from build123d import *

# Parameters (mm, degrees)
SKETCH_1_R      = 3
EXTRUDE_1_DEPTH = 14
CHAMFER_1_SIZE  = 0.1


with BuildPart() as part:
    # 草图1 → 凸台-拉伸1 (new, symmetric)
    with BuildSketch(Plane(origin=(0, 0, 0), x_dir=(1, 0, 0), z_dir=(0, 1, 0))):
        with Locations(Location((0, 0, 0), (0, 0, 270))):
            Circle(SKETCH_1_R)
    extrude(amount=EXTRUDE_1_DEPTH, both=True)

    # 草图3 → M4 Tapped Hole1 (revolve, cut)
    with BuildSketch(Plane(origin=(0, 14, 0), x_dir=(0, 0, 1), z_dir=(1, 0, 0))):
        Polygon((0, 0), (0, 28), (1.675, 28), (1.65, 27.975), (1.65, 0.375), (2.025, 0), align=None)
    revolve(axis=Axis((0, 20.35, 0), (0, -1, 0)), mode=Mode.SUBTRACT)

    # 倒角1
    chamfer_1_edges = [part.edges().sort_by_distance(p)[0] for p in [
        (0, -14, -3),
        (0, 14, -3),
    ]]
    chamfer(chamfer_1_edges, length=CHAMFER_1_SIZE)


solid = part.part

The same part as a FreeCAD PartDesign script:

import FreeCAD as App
import Part
import Sketcher
Q = App.Units.Quantity


def edges_at(feature, points):
    """Names of the edges that pass closest to the given points."""
    edges = feature.Shape.Edges
    near = lambda p: min(range(len(edges)), key=lambda i: edges[i].distToShape(Part.Vertex(*p))[0])
    return sorted({f"Edge{near(p) + 1}" for p in points})

doc = App.newDocument("Part")
body = doc.addObject("PartDesign::Body", "Body")

# Sketch on XZ plane
sketch1 = doc.addObject("Sketcher::SketchObject", "Sketch")
body.addObject(sketch1)
sketch1.AttachmentSupport = (doc.XZ_Plane, [""])
sketch1.MapMode = "FlatFace"
sketch1.addGeometry(Part.Circle(App.Vector(0, 0, 0), App.Vector(0, 0, 1), 3), False)
sketch1.addConstraint([
    Sketcher.Constraint("Coincident", 0, 3, -1, 1),
    Sketcher.Constraint("Diameter", 0, 6.0),
])
pad1 = doc.addObject("PartDesign::Pad", "Pad")
body.addObject(pad1)
pad1.Profile = sketch1
pad1.Length = 28
pad1.Midplane = True

# Sketch on YZ plane
sketch2 = doc.addObject("Sketcher::SketchObject", "Sketch001")
body.addObject(sketch2)
sketch2.AttachmentSupport = (doc.YZ_Plane, [""])
sketch2.MapMode = "FlatFace"
sketch2.addGeometry([
    Part.LineSegment(App.Vector(-14, 0, 0), App.Vector(14, 0, 0)),  # 0
    Part.LineSegment(App.Vector(14, 0, 0), App.Vector(14, 2.025, 0)),  # 1
    Part.LineSegment(App.Vector(14, 2.025, 0), App.Vector(13.625, 1.65, 0)),  # 2
    Part.LineSegment(App.Vector(13.625, 1.65, 0), App.Vector(-13.975, 1.65, 0)),  # 3
    Part.LineSegment(App.Vector(-13.975, 1.65, 0), App.Vector(-14, 1.675, 0)),  # 4
    Part.LineSegment(App.Vector(-14, 1.675, 0), App.Vector(-14, 0, 0)),  # 5
], False)
sketch2.addConstraint([
    Sketcher.Constraint("Coincident", 0, 2, 1, 1),
    Sketcher.Constraint("Coincident", 1, 2, 2, 1),
    Sketcher.Constraint("Coincident", 2, 2, 3, 1),
    Sketcher.Constraint("Coincident", 3, 2, 4, 1),
    Sketcher.Constraint("Coincident", 4, 2, 5, 1),
    Sketcher.Constraint("Coincident", 5, 2, 0, 1),
    Sketcher.Constraint("Horizontal", 0),
    Sketcher.Constraint("Vertical", 1),
    Sketcher.Constraint("Horizontal", 3),
    Sketcher.Constraint("Vertical", 5),
    Sketcher.Constraint("Symmetric", 0, 2, 5, 2, -1, 1),
    Sketcher.Constraint("Perpendicular", 2, 4),
    Sketcher.Constraint("DistanceX", 0, 1, 0, 2, 28.0),
    Sketcher.Constraint("Angle", 2, Q("-135 deg")),
    Sketcher.Constraint("DistanceX", 3, 2, 3, 1, 27.6),
    Sketcher.Constraint("DistanceY", 1, 1, 1, 2, 2.025),
    Sketcher.Constraint("DistanceY", 5, 2, 5, 1, 1.675),
])
groove = doc.addObject("PartDesign::Groove", "Groove")
body.addObject(groove)
groove.Profile = sketch2
groove.ReferenceAxis = (sketch2, ["H_Axis"])
groove.Angle = 360
doc.recompute()

chamfer = doc.addObject("PartDesign::Chamfer", "Chamfer")
body.addObject(chamfer)
chamfer.Base = (groove, edges_at(groove, [(0, -14, -3), (0, 14, -3)]))
chamfer.Size = 0.1

doc.recompute()
